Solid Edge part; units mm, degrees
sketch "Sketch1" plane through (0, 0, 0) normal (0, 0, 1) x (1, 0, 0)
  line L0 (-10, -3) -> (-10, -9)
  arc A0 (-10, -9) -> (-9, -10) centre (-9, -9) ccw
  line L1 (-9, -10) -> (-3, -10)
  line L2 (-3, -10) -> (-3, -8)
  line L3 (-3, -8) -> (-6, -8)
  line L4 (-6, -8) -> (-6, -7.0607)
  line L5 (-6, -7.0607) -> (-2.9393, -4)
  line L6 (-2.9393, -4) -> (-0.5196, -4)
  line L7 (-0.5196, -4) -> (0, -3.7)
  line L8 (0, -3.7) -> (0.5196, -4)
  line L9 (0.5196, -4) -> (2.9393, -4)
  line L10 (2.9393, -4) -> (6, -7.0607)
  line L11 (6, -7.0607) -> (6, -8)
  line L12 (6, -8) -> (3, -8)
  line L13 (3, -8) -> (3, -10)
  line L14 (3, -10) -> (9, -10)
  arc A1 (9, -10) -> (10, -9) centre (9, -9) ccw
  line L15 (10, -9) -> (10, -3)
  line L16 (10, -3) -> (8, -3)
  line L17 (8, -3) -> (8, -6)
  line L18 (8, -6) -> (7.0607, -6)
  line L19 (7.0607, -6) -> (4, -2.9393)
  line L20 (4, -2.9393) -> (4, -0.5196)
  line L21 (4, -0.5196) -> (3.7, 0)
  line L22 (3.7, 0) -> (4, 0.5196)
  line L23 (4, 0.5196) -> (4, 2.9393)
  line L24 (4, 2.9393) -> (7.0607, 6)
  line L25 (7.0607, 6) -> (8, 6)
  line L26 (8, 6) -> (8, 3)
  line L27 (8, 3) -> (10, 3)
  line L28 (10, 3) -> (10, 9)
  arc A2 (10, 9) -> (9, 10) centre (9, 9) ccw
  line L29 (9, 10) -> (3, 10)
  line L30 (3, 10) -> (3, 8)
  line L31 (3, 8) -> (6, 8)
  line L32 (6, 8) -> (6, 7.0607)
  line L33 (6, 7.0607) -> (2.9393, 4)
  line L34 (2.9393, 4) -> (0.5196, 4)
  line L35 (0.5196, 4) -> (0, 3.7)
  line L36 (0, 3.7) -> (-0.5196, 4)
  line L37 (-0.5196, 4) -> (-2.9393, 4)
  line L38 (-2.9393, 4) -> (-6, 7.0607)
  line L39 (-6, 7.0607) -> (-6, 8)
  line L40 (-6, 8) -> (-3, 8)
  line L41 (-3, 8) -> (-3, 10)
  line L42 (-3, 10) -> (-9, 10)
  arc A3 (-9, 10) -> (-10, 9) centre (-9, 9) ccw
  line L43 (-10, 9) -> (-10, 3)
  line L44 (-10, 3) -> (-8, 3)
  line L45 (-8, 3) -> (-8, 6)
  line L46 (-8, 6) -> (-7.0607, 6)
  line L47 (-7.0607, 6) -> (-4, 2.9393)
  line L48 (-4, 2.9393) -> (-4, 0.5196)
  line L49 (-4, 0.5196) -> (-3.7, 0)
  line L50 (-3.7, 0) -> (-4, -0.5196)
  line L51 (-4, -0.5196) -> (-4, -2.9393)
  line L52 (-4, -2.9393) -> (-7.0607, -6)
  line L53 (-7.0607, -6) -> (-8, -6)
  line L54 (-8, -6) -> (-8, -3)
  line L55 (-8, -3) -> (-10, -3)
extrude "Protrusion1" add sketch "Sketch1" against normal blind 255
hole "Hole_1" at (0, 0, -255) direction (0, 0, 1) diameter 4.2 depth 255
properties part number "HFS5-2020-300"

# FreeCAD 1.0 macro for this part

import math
import FreeCAD as App
import Part
import Sketcher
Q = App.Units.Quantity

doc = App.newDocument("Part")
body = doc.addObject("PartDesign::Body", "Body")

sketch1 = body.newObject("Sketcher::SketchObject", "Sketch")
sketch1.AttachmentSupport = (doc.getObject("XY_Plane"), [""])
sketch1.MapMode = "FlatFace"
sketch1.addGeometry([
    Part.LineSegment(App.Vector(-8, -3, 0), App.Vector(-10, -3, 0)),
    Part.LineSegment(App.Vector(-10, -3, 0), App.Vector(-10, -9, 0)),
    Part.ArcOfCircle(Part.Circle(App.Vector(-9, -9, 0), App.Vector(0, 0, 1), 1), math.radians(180), math.radians(270)),
    Part.LineSegment(App.Vector(-9, -10, 0), App.Vector(-3, -10, 0)),
    Part.LineSegment(App.Vector(-3, -10, 0), App.Vector(-3, -8, 0)),
    Part.LineSegment(App.Vector(-3, -8, 0), App.Vector(-6, -8, 0)),
    Part.LineSegment(App.Vector(-6, -8, 0), App.Vector(-6, -7.1, 0)),
    Part.LineSegment(App.Vector(-6, -7.1, 0), App.Vector(-2.9, -4, 0)),
    Part.LineSegment(App.Vector(-2.9, -4, 0), App.Vector(-0.5, -4, 0)),
    Part.LineSegment(App.Vector(-0.5, -4, 0), App.Vector(0, -3.7, 0)),
    Part.LineSegment(App.Vector(0, -3.7, 0), App.Vector(0.5, -4, 0)),
    Part.LineSegment(App.Vector(0.5, -4, 0), App.Vector(2.9, -4, 0)),
    Part.LineSegment(App.Vector(2.9, -4, 0), App.Vector(6, -7.1, 0)),
    Part.LineSegment(App.Vector(6, -7.1, 0), App.Vector(6, -8, 0)),
    Part.LineSegment(App.Vector(6, -8, 0), App.Vector(3, -8, 0)),
    Part.LineSegment(App.Vector(3, -8, 0), App.Vector(3, -10, 0)),
    Part.LineSegment(App.Vector(3, -10, 0), App.Vector(9, -10, 0)),
    Part.ArcOfCircle(Part.Circle(App.Vector(9, -9, 0), App.Vector(0, 0, 1), 1), math.radians(-90), math.radians(0)),
    Part.LineSegment(App.Vector(10, -9, 0), App.Vector(10, -3, 0)),
    Part.LineSegment(App.Vector(10, -3, 0), App.Vector(8, -3, 0)),
    Part.LineSegment(App.Vector(8, -3, 0), App.Vector(8, -6, 0)),
    Part.LineSegment(App.Vector(8, -6, 0), App.Vector(7.1, -6, 0)),
    Part.LineSegment(App.Vector(7.1, -6, 0), App.Vector(4, -2.9, 0)),
    Part.LineSegment(App.Vector(4, -2.9, 0), App.Vector(4, -0.5, 0)),
    Part.LineSegment(App.Vector(4, -0.5, 0), App.Vector(3.7, 0, 0)),
    Part.LineSegment(App.Vector(3.7, 0, 0), App.Vector(4, 0.5, 0)),
    Part.LineSegment(App.Vector(4, 0.5, 0), App.Vector(4, 2.9, 0)),
    Part.LineSegment(App.Vector(4, 2.9, 0), App.Vector(7.1, 6, 0)),
    Part.LineSegment(App.Vector(7.1, 6, 0), App.Vector(8, 6, 0)),
    Part.LineSegment(App.Vector(8, 6, 0), App.Vector(8, 3, 0)),
    Part.LineSegment(App.Vector(8, 3, 0), App.Vector(10, 3, 0)),
    Part.LineSegment(App.Vector(10, 3, 0), App.Vector(10, 9, 0)),
    Part.ArcOfCircle(Part.Circle(App.Vector(9, 9, 0), App.Vector(0, 0, 1), 1), math.radians(0), math.radians(90)),
    Part.LineSegment(App.Vector(9, 10, 0), App.Vector(3, 10, 0)),
    Part.LineSegment(App.Vector(3, 10, 0), App.Vector(3, 8, 0)),
    Part.LineSegment(App.Vector(3, 8, 0), App.Vector(6, 8, 0)),
    Part.LineSegment(App.Vector(6, 8, 0), App.Vector(6, 7.1, 0)),
    Part.LineSegment(App.Vector(6, 7.1, 0), App.Vector(2.9, 4, 0)),
    Part.LineSegment(App.Vector(2.9, 4, 0), App.Vector(0.5, 4, 0)),
    Part.LineSegment(App.Vector(0.5, 4, 0), App.Vector(0, 3.7, 0)),
    Part.LineSegment(App.Vector(0, 3.7, 0), App.Vector(-0.5, 4, 0)),
    Part.LineSegment(App.Vector(-0.5, 4, 0), App.Vector(-2.9, 4, 0)),
    Part.LineSegment(App.Vector(-2.9, 4, 0), App.Vector(-6, 7.1, 0)),
    Part.LineSegment(App.Vector(-6, 7.1, 0), App.Vector(-6, 8, 0)),
    Part.LineSegment(App.Vector(-6, 8, 0), App.Vector(-3, 8, 0)),
    Part.LineSegment(App.Vector(-3, 8, 0), App.Vector(-3, 10, 0)),
    Part.LineSegment(App.Vector(-3, 10, 0), App.Vector(-9, 10, 0)),
    Part.ArcOfCircle(Part.Circle(App.Vector(-9, 9, 0), App.Vector(0, 0, 1), 1), math.radians(90), math.radians(180)),
    Part.LineSegment(App.Vector(-10, 9, 0), App.Vector(-10, 3, 0)),
    Part.LineSegment(App.Vector(-10, 3, 0), App.Vector(-8, 3, 0)),
    Part.LineSegment(App.Vector(-8, 3, 0), App.Vector(-8, 6, 0)),
    Part.LineSegment(App.Vector(-8, 6, 0), App.Vector(-7.1, 6, 0)),
    Part.LineSegment(App.Vector(-7.1, 6, 0), App.Vector(-4, 2.9, 0)),
    Part.LineSegment(App.Vector(-4, 2.9, 0), App.Vector(-4, 0.5, 0)),
    Part.LineSegment(App.Vector(-4, 0.5, 0), App.Vector(-3.7, 0, 0)),
    Part.LineSegment(App.Vector(-3.7, 0, 0), App.Vector(-4, -0.5, 0)),
    Part.LineSegment(App.Vector(-4, -0.5, 0), App.Vector(-4, -2.9, 0)),
    Part.LineSegment(App.Vector(-4, -2.9, 0), App.Vector(-7.1, -6, 0)),
    Part.LineSegment(App.Vector(-7.1, -6, 0), App.Vector(-8, -6, 0)),
    Part.LineSegment(App.Vector(-8, -6, 0), App.Vector(-8, -3, 0)),
], False)
sketch1.addConstraint([
    Sketcher.Constraint("Coincident", 0, 2, 1, 1),
    Sketcher.Constraint("Tangent", 1, 2, 2, 1),
    Sketcher.Constraint("Tangent", 2, 2, 3, 1),
    Sketcher.Constraint("Coincident", 3, 2, 4, 1),
    Sketcher.Constraint("Coincident", 4, 2, 5, 1),
    Sketcher.Constraint("Coincident", 5, 2, 6, 1),
    Sketcher.Constraint("Coincident", 6, 2, 7, 1),
    Sketcher.Constraint("Coincident", 7, 2, 8, 1),
    Sketcher.Constraint("Coincident", 8, 2, 9, 1),
    Sketcher.Constraint("Coincident", 9, 2, 10, 1),
    Sketcher.Constraint("Coincident", 10, 2, 11, 1),
    Sketcher.Constraint("Coincident", 11, 2, 12, 1),
    Sketcher.Constraint("Coincident", 12, 2, 13, 1),
    Sketcher.Constraint("Coincident", 13, 2, 14, 1),
    Sketcher.Constraint("Coincident", 14, 2, 15, 1),
    Sketcher.Constraint("Coincident", 15, 2, 16, 1),
    Sketcher.Constraint("Tangent", 16, 2, 17, 1),
    Sketcher.Constraint("Tangent", 17, 2, 18, 1),
    Sketcher.Constraint("Coincident", 18, 2, 19, 1),
    Sketcher.Constraint("Coincident", 19, 2, 20, 1),
    Sketcher.Constraint("Coincident", 20, 2, 21, 1),
    Sketcher.Constraint("Coincident", 21, 2, 22, 1),
    Sketcher.Constraint("Coincident", 22, 2, 23, 1),
    Sketcher.Constraint("Coincident", 23, 2, 24, 1),
    Sketcher.Constraint("Coincident", 24, 2, 25, 1),
    Sketcher.Constraint("Coincident", 25, 2, 26, 1),
    Sketcher.Constraint("Coincident", 26, 2, 27, 1),
    Sketcher.Constraint("Coincident", 27, 2, 28, 1),
    Sketcher.Constraint("Coincident", 28, 2, 29, 1),
    Sketcher.Constraint("Coincident", 29, 2, 30, 1),
    Sketcher.Constraint("Coincident", 30, 2, 31, 1),
    Sketcher.Constraint("Tangent", 31, 2, 32, 1),
    Sketcher.Constraint("Tangent", 32, 2, 33, 1),
    Sketcher.Constraint("Coincident", 33, 2, 34, 1),
    Sketcher.Constraint("Coincident", 34, 2, 35, 1),
    Sketcher.Constraint("Coincident", 35, 2, 36, 1),
    Sketcher.Constraint("Coincident", 36, 2, 37, 1),
    Sketcher.Constraint("Coincident", 37, 2, 38, 1),
    Sketcher.Constraint("Coincident", 38, 2, 39, 1),
    Sketcher.Constraint("Coincident", 39, 2, 40, 1),
    Sketcher.Constraint("Coincident", 40, 2, 41, 1),
    Sketcher.Constraint("Coincident", 41, 2, 42, 1),
    Sketcher.Constraint("Coincident", 42, 2, 43, 1),
    Sketcher.Constraint("Coincident", 43, 2, 44, 1),
    Sketcher.Constraint("Coincident", 44, 2, 45, 1),
    Sketcher.Constraint("Coincident", 45, 2, 46, 1),
    Sketcher.Constraint("Tangent", 46, 2, 47, 1),
    Sketcher.Constraint("Tangent", 47, 2, 48, 1),
    Sketcher.Constraint("Coincident", 48, 2, 49, 1),
    Sketcher.Constraint("Coincident", 49, 2, 50, 1),
    Sketcher.Constraint("Coincident", 50, 2, 51, 1),
    Sketcher.Constraint("Coincident", 51, 2, 52, 1),
    Sketcher.Constraint("Coincident", 52, 2, 53, 1),
    Sketcher.Constraint("Coincident", 53, 2, 54, 1),
    Sketcher.Constraint("Coincident", 54, 2, 55, 1),
    Sketcher.Constraint("Coincident", 55, 2, 56, 1),
    Sketcher.Constraint("Coincident", 56, 2, 57, 1),
    Sketcher.Constraint("Coincident", 57, 2, 58, 1),
    Sketcher.Constraint("Coincident", 58, 2, 59, 1),
    Sketcher.Constraint("Coincident", 59, 2, 0, 1),
    Sketcher.Constraint("Horizontal", 0),
    Sketcher.Constraint("Vertical", 1),
    Sketcher.Constraint("Horizontal", 3),
    Sketcher.Constraint("Vertical", 4),
    Sketcher.Constraint("Horizontal", 5),
    Sketcher.Constraint("Vertical", 6),
    Sketcher.Constraint("Horizontal", 8),
    Sketcher.Constraint("Horizontal", 11),
    Sketcher.Constraint("Vertical", 13),
    Sketcher.Constraint("Horizontal", 14),
    Sketcher.Constraint("Vertical", 15),
    Sketcher.Constraint("Horizontal", 16),
    Sketcher.Constraint("Vertical", 18),
    Sketcher.Constraint("Horizontal", 19),
    Sketcher.Constraint("Vertical", 20),
    Sketcher.Constraint("Horizontal", 21),
    Sketcher.Constraint("Vertical", 23),
    Sketcher.Constraint("Vertical", 26),
    Sketcher.Constraint("Horizontal", 28),
    Sketcher.Constraint("Vertical", 29),
    Sketcher.Constraint("Horizontal", 30),
    Sketcher.Constraint("Vertical", 31),
    Sketcher.Constraint("Horizontal", 33),
    Sketcher.Constraint("Vertical", 34),
    Sketcher.Constraint("Horizontal", 35),
    Sketcher.Constraint("Vertical", 36),
    Sketcher.Constraint("Horizontal", 38),
    Sketcher.Constraint("Horizontal", 41),
    Sketcher.Constraint("Vertical", 43),
    Sketcher.Constraint("Horizontal", 44),
    Sketcher.Constraint("Vertical", 45),
    Sketcher.Constraint("Horizontal", 46),
    Sketcher.Constraint("Vertical", 48),
    Sketcher.Constraint("Horizontal", 49),
    Sketcher.Constraint("Vertical", 50),
    Sketcher.Constraint("Horizontal", 51),
    Sketcher.Constraint("Vertical", 53),
    Sketcher.Constraint("Vertical", 56),
    Sketcher.Constraint("Horizontal", 58),
    Sketcher.Constraint("Vertical", 59),
    Sketcher.Constraint("Equal", 2, 17),
    Sketcher.Constraint("Equal", 17, 32),
    Sketcher.Constraint("Equal", 32, 47),
    Sketcher.Constraint("Symmetric", 2, 3, 32, 3, -1, 1),
    Sketcher.Constraint("Symmetric", 17, 3, 47, 3, -1, 1),
    Sketcher.Constraint("Symmetric", 4, 2, 34, 2, -1, 1),
    Sketcher.Constraint("Symmetric", 6, 2, 36, 2, -1, 1),
    Sketcher.Constraint("Symmetric", 7, 2, 37, 2, -1, 1),
    Sketcher.Constraint("Symmetric", 9, 2, 39, 2, -1, 1),
    Sketcher.Constraint("Symmetric", 10, 2, 40, 2, -1, 1),
    Sketcher.Constraint("Symmetric", 12, 2, 42, 2, -1, 1),
    Sketcher.Constraint("Symmetric", 14, 2, 44, 2, -1, 1),
    Sketcher.Constraint("Symmetric", 19, 2, 49, 2, -1, 1),
    Sketcher.Constraint("Symmetric", 21, 2, 51, 2, -1, 1),
    Sketcher.Constraint("Symmetric", 22, 2, 52, 2, -1, 1),
    Sketcher.Constraint("Symmetric", 24, 2, 54, 2, -1, 1),
    Sketcher.Constraint("Symmetric", 25, 2, 55, 2, -1, 1),
    Sketcher.Constraint("Symmetric", 27, 2, 57, 2, -1, 1),
    Sketcher.Constraint("Symmetric", 29, 2, 59, 2, -1, 1),
    Sketcher.Constraint("Symmetric", 2, 3, 17, 3, -2),
    Sketcher.Constraint("Symmetric", 8, 2, 10, 2, -2),
    Sketcher.Constraint("Symmetric", 6, 2, 12, 2, -2),
    Sketcher.Constraint("Symmetric", 4, 2, 14, 2, -2),
    Sketcher.Constraint("Symmetric", 29, 2, 49, 2, -2),
    Sketcher.Constraint("Symmetric", 27, 2, 51, 2, -2),
    Sketcher.Constraint("Symmetric", 26, 2, 52, 2, -2),
    Sketcher.Constraint("PointOnObject", 9, 2, -2),
    Sketcher.Constraint("PointOnObject", 24, 2, -1),
    Sketcher.Constraint("Perpendicular", 7, 12),
    Sketcher.Constraint("Parallel", 12, 22),
    Sketcher.Constraint("Perpendicular", 9, 24),
    Sketcher.Constraint("Perpendicular", 10, 25),
    Sketcher.Constraint("Perpendicular", 22, 27),
    Sketcher.Constraint("Perpendicular", 24, 39),
    Sketcher.Constraint("Perpendicular", 37, 42),
    Sketcher.Constraint("Perpendicular", 39, 54),
    Sketcher.Constraint("Perpendicular", 52, 57),
    Sketcher.Constraint("Equal", 46, 1),
    Sketcher.Constraint("Equal", 49, 4),
    Sketcher.Constraint("Equal", 58, 6),
    Sketcher.Constraint("Equal", 44, 20),
    Sketcher.Constraint("Equal", 41, 23),
    Sketcher.Constraint("Equal", 12, 22),
    Sketcher.Constraint("Equal", 10, 24),
    Sketcher.Constraint("Radius", 2, 1.0),
    Sketcher.Constraint("DistanceX", 0, 2, 0, 1, 2.0),
    Sketcher.Constraint("DistanceX", 3, 1, 3, 2, 6.0),
    Sketcher.Constraint("DistanceX", 5, 2, 5, 1, 3.0),
    Sketcher.Constraint("Angle", 9, Q("30.0007 deg")),
    Sketcher.Constraint("DistanceX", 2, 3, -1, 1, 9.0),
    Sketcher.Constraint("DistanceY", 7, 2, -1, 1, 4.0),
    Sketcher.Constraint("Distance", 9, 0.6),
    Sketcher.Constraint("DistanceX", 8, 1, 8, 2, 2.4197),
])
pad1 = body.newObject("PartDesign::Pad", "Pad")
pad1.Profile = sketch1
pad1.Length = 255
pad1.Reversed = True

sketch2 = body.newObject("Sketcher::SketchObject", "Sketch001")
sketch2.AttachmentSupport = (doc.getObject("XY_Plane"), [""])
sketch2.MapMode = "FlatFace"
sketch2.AttachmentOffset = App.Placement(App.Vector(0, 0, -255), App.Rotation())
sketch2.addGeometry(Part.Circle(App.Vector(0, 0, 0), App.Vector(0, 0, 1), 2.1), False)
sketch2.addConstraint([
    Sketcher.Constraint("Coincident", 0, 3, -1, 1),
    Sketcher.Constraint("Diameter", 0, 4.2),
])
doc.recompute()
hole = body.newObject("PartDesign::Hole", "Hole")
hole.Profile = sketch2
hole.ThreadType = "None"
hole.Diameter = 4.2
hole.DepthType = "Dimension"
hole.Depth = 255
hole.DrillPoint = "Flat"
hole.Reversed = True

doc.recompute()
